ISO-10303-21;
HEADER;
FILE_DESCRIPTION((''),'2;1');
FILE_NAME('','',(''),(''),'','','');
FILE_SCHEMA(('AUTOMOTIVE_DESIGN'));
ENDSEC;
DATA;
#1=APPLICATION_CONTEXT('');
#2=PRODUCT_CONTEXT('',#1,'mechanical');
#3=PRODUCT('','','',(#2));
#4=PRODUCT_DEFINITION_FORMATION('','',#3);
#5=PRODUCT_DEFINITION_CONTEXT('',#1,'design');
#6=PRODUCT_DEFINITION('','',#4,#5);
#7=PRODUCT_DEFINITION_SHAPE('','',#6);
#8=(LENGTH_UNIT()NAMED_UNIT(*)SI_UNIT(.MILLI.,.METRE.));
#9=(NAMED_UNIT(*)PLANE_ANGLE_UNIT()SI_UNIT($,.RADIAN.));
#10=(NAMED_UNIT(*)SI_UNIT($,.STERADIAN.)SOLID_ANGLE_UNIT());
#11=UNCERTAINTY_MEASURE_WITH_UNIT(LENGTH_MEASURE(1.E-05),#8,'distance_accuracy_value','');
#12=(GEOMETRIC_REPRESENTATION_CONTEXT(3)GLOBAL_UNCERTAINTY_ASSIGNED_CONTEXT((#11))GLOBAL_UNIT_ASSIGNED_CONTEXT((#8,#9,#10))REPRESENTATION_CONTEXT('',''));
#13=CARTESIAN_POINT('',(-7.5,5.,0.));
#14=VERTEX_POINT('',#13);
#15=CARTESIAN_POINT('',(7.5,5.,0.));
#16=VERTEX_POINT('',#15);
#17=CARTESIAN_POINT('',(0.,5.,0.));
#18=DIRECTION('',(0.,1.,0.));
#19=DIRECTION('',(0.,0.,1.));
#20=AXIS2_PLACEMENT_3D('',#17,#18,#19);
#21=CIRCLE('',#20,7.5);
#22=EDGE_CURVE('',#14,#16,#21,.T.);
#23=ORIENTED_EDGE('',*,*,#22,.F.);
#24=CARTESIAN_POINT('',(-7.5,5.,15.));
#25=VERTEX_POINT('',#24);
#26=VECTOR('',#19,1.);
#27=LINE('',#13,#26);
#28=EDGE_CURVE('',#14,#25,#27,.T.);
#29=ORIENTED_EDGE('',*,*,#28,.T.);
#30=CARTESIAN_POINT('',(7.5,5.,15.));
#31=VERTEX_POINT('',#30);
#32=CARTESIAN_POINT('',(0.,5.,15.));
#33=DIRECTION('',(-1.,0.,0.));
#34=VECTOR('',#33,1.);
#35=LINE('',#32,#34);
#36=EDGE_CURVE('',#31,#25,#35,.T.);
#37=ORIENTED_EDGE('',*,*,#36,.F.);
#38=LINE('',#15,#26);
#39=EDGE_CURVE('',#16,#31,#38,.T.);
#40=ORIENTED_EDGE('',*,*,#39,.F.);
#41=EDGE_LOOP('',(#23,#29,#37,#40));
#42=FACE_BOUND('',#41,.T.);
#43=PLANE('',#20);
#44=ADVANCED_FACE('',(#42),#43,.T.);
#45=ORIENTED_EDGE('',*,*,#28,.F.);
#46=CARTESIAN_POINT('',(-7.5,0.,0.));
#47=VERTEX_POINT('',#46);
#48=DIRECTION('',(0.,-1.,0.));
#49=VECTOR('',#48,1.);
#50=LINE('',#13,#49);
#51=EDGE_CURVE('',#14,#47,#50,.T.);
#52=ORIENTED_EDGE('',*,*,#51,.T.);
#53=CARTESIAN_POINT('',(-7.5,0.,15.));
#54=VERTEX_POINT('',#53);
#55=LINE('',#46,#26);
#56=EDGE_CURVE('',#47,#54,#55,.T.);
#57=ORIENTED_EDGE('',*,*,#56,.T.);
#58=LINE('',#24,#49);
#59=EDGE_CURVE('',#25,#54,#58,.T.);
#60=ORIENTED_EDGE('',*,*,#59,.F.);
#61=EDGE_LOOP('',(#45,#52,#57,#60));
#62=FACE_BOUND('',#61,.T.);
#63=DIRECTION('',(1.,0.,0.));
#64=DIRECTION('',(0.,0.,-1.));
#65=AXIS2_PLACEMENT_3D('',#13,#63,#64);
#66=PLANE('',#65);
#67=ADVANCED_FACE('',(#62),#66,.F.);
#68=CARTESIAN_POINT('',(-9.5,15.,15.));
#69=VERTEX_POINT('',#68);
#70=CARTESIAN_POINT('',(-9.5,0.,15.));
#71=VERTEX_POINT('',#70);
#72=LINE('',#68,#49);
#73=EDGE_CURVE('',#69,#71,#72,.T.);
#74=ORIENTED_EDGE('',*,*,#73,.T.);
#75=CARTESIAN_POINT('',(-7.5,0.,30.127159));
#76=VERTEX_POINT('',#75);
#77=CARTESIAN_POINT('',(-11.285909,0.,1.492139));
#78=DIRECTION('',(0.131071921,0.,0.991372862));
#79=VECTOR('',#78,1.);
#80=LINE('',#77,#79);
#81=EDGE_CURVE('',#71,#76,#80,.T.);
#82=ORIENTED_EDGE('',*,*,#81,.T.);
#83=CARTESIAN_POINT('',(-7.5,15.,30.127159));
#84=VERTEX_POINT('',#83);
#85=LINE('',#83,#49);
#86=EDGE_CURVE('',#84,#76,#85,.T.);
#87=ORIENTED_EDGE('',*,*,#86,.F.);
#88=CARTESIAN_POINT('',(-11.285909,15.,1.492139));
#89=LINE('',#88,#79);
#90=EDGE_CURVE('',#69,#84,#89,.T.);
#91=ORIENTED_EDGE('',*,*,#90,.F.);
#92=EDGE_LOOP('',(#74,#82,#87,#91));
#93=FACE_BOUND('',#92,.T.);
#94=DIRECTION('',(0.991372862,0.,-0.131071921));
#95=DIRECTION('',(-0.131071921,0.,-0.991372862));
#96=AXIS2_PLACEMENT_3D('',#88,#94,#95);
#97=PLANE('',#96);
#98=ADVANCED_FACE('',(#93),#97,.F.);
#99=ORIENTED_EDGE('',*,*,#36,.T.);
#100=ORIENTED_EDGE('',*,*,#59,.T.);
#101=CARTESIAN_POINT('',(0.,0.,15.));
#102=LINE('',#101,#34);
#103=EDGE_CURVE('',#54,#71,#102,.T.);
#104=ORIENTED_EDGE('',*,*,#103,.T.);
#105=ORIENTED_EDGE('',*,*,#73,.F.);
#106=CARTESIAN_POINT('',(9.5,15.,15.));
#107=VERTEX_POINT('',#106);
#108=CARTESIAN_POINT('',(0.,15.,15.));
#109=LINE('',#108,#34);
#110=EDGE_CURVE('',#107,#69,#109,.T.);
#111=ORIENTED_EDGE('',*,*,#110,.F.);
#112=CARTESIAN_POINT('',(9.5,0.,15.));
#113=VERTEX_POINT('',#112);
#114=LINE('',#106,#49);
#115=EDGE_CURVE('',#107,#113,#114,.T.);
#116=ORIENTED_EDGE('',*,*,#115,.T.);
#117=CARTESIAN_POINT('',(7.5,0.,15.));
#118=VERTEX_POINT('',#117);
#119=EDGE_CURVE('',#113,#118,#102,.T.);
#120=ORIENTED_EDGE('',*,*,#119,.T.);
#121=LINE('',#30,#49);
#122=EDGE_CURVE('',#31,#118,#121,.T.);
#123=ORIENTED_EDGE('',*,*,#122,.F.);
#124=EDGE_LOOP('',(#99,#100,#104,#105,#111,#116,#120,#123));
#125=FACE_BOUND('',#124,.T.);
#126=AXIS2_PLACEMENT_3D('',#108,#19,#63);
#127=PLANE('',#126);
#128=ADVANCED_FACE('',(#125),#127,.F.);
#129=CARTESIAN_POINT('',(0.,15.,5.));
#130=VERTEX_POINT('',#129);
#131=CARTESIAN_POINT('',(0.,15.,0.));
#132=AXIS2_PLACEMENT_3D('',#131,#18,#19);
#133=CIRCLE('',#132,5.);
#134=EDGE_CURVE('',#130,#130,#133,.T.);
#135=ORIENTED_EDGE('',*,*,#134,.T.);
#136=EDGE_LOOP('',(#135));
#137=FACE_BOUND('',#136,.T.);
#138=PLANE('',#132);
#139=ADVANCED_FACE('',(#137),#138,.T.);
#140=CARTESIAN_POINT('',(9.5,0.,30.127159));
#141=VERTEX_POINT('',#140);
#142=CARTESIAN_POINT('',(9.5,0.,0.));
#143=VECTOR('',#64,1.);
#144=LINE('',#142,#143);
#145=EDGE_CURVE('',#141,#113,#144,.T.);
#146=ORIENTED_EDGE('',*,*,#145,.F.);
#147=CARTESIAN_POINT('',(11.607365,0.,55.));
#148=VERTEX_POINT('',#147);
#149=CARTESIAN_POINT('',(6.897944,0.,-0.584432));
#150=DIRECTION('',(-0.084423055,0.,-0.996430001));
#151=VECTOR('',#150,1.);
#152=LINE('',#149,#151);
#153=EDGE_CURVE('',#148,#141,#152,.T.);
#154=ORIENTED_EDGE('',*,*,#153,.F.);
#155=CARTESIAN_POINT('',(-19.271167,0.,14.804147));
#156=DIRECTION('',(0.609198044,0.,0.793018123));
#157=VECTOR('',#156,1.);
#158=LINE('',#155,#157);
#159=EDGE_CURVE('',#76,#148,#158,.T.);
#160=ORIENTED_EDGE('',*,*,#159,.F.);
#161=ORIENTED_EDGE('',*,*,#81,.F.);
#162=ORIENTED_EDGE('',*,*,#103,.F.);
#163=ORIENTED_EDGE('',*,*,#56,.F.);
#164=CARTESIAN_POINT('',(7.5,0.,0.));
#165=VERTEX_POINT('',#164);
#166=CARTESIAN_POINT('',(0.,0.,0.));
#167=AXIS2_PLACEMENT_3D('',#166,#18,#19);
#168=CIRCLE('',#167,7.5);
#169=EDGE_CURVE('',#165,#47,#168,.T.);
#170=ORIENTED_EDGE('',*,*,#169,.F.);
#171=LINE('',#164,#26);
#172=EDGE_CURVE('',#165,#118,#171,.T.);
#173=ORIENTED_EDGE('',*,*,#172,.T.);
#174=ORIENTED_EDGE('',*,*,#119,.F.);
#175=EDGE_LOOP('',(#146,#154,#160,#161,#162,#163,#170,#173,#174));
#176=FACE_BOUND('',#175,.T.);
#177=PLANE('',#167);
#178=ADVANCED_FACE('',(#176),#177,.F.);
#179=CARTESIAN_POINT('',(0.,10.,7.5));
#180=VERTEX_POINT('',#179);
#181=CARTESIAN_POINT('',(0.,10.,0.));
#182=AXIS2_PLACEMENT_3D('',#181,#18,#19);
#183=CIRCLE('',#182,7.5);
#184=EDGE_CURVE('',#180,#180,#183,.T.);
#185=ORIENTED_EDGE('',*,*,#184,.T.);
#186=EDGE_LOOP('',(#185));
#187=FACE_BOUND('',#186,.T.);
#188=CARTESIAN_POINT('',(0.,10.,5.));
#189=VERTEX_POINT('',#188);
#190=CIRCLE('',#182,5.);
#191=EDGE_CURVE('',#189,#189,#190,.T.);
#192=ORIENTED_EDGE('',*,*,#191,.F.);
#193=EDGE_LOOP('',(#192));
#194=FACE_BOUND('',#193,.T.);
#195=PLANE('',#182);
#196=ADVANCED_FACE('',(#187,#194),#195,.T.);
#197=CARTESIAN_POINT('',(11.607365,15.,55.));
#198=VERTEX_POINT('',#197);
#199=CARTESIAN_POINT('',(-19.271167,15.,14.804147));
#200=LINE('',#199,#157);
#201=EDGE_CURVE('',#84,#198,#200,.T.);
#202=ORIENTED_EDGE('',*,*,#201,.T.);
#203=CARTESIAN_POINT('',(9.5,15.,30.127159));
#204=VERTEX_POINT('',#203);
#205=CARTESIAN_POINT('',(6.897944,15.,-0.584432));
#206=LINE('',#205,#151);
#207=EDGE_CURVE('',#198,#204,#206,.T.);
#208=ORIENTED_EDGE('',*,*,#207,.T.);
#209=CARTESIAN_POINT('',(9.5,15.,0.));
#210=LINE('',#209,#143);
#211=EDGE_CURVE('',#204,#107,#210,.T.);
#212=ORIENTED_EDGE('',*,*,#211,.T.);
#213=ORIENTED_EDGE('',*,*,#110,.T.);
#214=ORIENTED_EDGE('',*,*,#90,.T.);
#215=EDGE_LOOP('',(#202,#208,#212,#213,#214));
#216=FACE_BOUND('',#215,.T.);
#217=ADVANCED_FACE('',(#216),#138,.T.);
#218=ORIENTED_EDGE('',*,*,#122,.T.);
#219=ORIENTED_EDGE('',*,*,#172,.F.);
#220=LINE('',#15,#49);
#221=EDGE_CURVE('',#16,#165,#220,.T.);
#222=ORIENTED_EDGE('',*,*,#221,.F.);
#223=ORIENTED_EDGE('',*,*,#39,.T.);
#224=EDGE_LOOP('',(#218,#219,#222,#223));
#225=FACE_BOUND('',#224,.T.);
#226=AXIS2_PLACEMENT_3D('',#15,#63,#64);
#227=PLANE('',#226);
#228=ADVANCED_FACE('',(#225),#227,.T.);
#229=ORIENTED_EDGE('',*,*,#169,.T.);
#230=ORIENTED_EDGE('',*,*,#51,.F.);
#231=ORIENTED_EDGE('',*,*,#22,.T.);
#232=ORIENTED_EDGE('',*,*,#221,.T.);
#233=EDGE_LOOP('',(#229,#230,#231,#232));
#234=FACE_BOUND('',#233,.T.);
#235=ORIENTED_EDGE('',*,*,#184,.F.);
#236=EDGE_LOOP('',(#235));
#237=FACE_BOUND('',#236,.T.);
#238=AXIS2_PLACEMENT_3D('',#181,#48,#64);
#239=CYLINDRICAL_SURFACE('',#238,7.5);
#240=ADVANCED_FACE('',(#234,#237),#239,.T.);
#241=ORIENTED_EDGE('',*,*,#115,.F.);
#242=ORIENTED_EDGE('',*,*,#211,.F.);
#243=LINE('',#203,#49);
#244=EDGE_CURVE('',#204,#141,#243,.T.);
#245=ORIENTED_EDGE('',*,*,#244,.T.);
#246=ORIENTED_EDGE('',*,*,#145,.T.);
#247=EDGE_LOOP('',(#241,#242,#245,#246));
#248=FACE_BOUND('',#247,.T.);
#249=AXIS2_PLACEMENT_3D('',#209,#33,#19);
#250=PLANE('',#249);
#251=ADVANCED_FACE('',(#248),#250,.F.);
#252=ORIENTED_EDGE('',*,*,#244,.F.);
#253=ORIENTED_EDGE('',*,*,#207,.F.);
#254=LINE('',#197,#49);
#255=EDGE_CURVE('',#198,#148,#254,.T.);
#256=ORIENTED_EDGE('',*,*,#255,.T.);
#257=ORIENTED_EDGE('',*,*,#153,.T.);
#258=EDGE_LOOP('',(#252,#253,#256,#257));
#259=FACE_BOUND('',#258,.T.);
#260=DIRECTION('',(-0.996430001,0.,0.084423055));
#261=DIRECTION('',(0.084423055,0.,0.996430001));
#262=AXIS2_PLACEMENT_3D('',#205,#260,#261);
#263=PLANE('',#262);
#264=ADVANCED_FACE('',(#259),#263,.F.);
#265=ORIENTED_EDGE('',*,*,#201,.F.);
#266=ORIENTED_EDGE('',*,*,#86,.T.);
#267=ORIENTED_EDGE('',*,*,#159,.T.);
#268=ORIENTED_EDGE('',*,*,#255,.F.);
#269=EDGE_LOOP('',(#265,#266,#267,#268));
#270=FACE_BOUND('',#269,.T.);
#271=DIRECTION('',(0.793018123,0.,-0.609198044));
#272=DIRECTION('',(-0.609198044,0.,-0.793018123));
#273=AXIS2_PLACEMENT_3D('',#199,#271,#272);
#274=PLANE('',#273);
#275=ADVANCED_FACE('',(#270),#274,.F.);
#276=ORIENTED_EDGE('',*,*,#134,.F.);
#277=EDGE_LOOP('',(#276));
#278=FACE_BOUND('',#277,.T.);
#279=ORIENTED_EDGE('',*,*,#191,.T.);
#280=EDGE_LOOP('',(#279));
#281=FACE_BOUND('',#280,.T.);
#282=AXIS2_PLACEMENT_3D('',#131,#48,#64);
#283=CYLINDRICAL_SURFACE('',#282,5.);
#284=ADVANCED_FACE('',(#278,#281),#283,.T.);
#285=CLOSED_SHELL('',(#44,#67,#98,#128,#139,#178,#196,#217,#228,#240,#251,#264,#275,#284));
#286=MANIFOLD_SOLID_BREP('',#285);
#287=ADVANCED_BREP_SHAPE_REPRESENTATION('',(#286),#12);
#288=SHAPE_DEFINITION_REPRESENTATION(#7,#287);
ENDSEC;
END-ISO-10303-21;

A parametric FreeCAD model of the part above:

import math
import FreeCAD as App
import Part
import Sketcher

V = App.Vector
Q = App.Units.Quantity


def add_polygon(sketch, points):
    """Adds a closed chain of lines whose ends are joined by coincident constraints."""
    first, n = sketch.GeometryCount, len(points)
    for a, b in zip(points, points[1:] + points[:1]):
        sketch.addGeometry(Part.LineSegment(App.Vector(*a, 0), App.Vector(*b, 0)), False)
    for i in range(n):
        sketch.addConstraint(Sketcher.Constraint("Coincident", first + i, 2, first + (i + 1) % n, 1))

doc = App.newDocument("Part")
body = doc.addObject("PartDesign::Body", "Body")

# Sketch on XZ plane
sketch1 = doc.addObject("Sketcher::SketchObject", "Sketch")
body.addObject(sketch1)
sketch1.AttachmentSupport = (doc.XZ_Plane, [""])
sketch1.MapMode = "FlatFace"
sketch1.addGeometry([
    Part.Circle(V(0, 0, 0), V(0, 0, 1), 8),
    Part.Circle(V(0, 0, 0), V(0, 0, 1), 5),
], False)
sketch1.addConstraint([
    Sketcher.Constraint("Coincident", 0, 3, -1, 1),
    Sketcher.Constraint("Coincident", 1, 3, -1, 1),
    Sketcher.Constraint("Diameter", 0, Q("15 mm")),
    Sketcher.Constraint("Diameter", 1, Q("10 mm")),
])
pad1 = doc.addObject("PartDesign::Pad", "Pad")
body.addObject(pad1)
pad1.Profile = sketch1
pad1.Length = 10
pad1.Reversed = True
body2 = doc.addObject("PartDesign::Body", "Body001")

# Sketch on XZ plane
sketch2 = doc.addObject("Sketcher::SketchObject", "Sketch001")
body2.addObject(sketch2)
sketch2.AttachmentSupport = (doc.getObject("XZ_Plane001"), [""])
sketch2.MapMode = "FlatFace"
add_polygon(sketch2, [(10, 30), (10, 15), (-10, 15), (-8, 30), (12, 55)])  # lines 0-4
sketch2.addConstraint([
    Sketcher.Constraint("Vertical", 0),
    Sketcher.Constraint("Horizontal", 1),
    Sketcher.Constraint("Horizontal", 2, 2, 4, 2),
    Sketcher.Constraint("DistanceX", 1, 2, 1, 1, Q("19 mm")),
    Sketcher.Constraint("DistanceY", -1, 1, 0, 2, Q("15 mm")),
    Sketcher.Constraint("DistanceY", -1, 1, 3, 2, Q("55 mm")),
    Sketcher.Constraint("DistanceX", 1, 2, 2, 2, Q("2 mm")),
    Sketcher.Constraint("DistanceX", -1, 1, 0, 2, Q("9.5 mm")),
    Sketcher.Constraint("Distance", 2, Q("15.258798 mm")),
    Sketcher.Constraint("Distance", 3, Q("31.364783 mm")),
])
pad2 = doc.addObject("PartDesign::Pad", "Pad001")
body2.addObject(pad2)
pad2.Profile = sketch2
pad2.Length = 15
pad2.Reversed = True
body.AllowCompound = True
doc.recompute()

boolean = doc.addObject("PartDesign::Boolean", "Boolean")
body.addObject(boolean)
boolean.Type = "Fuse"
boolean.addObjects([body2])

# Sketch on XZ plane
sketch3 = doc.addObject("Sketcher::SketchObject", "Sketch002")
body.addObject(sketch3)
sketch3.AttachmentSupport = (doc.XZ_Plane, [""])
sketch3.MapMode = "FlatFace"
sketch3.addGeometry([
    Part.LineSegment(V(-8, 0, 0), V(-8, 15, 0)),
    Part.LineSegment(V(-8, 15, 0), V(8, 15, 0)),
    Part.LineSegment(V(8, 15, 0), V(8, 0, 0)),
    Part.ArcOfCircle(Part.Circle(V(0, 0, 0), V(0, 0, 1), 8), math.radians(0), math.radians(180)),
], False)
sketch3.addConstraint([
    Sketcher.Constraint("Coincident", 0, 2, 1, 1),
    Sketcher.Constraint("Coincident", 1, 2, 2, 1),
    Sketcher.Constraint("Tangent", 2, 2, 3, 1),
    Sketcher.Constraint("Tangent", 3, 2, 0, 1),
    Sketcher.Constraint("Vertical", 0),
    Sketcher.Constraint("Horizontal", 1),
    Sketcher.Constraint("Vertical", 2),
    Sketcher.Constraint("Coincident", 3, 3, -1, 1),
    Sketcher.Constraint("Equal", 1, 0),
    Sketcher.Constraint("Radius", 3, Q("7.5 mm")),
])
pad3 = doc.addObject("PartDesign::Pad", "Pad002")
body.addObject(pad3)
pad3.Profile = sketch3
pad3.Length = 5
pad3.Reversed = True

# Sketch on XZ plane
sketch4 = doc.addObject("Sketcher::SketchObject", "Sketch003")
body.addObject(sketch4)
sketch4.AttachmentSupport = (doc.XZ_Plane, [""])
sketch4.MapMode = "FlatFace"
sketch4.addGeometry(Part.Circle(V(0, 0, 0), V(0, 0, 1), 5), False)
sketch4.addConstraint([
    Sketcher.Constraint("Coincident", 0, 3, -1, 1),
    Sketcher.Constraint("Diameter", 0, Q("10 mm")),
])
pad4 = doc.addObject("PartDesign::Pad", "Pad003")
body.addObject(pad4)
pad4.Profile = sketch4
pad4.Length = 15
pad4.Reversed = True

doc.recompute()
